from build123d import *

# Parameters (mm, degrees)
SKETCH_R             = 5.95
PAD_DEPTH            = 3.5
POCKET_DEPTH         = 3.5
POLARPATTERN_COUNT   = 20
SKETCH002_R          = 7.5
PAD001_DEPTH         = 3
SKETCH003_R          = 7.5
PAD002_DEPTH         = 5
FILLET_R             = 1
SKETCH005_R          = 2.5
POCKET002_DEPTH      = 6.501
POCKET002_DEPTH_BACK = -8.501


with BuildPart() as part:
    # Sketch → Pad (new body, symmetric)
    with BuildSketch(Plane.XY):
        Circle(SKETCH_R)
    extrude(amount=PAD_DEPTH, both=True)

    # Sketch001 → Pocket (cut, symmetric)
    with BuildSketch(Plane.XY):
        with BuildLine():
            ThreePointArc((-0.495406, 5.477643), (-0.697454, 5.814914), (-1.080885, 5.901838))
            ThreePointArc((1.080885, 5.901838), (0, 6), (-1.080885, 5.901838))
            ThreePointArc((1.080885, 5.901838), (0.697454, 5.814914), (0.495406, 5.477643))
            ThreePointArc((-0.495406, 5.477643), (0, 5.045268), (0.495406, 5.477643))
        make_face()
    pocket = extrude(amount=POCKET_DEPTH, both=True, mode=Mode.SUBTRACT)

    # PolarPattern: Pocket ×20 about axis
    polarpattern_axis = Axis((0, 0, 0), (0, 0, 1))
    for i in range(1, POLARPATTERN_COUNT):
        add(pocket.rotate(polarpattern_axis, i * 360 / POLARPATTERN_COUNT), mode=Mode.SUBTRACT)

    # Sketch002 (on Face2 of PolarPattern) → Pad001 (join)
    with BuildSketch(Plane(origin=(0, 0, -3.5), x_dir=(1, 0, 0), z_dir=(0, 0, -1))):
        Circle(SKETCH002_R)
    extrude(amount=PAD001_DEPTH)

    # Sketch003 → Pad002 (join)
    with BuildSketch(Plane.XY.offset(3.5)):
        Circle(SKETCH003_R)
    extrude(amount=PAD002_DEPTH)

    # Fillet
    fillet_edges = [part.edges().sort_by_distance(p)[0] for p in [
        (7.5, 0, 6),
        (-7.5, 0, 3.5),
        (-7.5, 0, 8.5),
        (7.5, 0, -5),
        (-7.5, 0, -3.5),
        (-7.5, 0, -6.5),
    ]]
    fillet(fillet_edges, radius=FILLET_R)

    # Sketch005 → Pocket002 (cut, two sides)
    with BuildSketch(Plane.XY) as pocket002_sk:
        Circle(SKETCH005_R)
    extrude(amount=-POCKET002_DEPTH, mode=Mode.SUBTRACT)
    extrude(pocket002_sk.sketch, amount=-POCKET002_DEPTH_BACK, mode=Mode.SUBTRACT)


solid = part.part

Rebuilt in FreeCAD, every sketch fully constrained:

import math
import FreeCAD as App
import Part
import Sketcher

V = App.Vector
Q = App.Units.Quantity


def edges_at(feature, points):
    """Names of the edges that pass closest to the given points."""
    edges = feature.Shape.Edges
    near = lambda p: min(range(len(edges)), key=lambda i: edges[i].distToShape(Part.Vertex(*p))[0])
    return sorted({f"Edge{near(p) + 1}" for p in points})

doc = App.newDocument("Part")
body = doc.addObject("PartDesign::Body", "Body")

# Sketch on XY plane
sketch1 = body.newObject("Sketcher::SketchObject", "Sketch")
sketch1.AttachmentSupport = (doc.getObject("XY_Plane"), [""])
sketch1.MapMode = "FlatFace"
sketch1.addGeometry(Part.Circle(V(0, 0, 0), V(0, 0, 1), 6), False)
sketch1.addConstraint(Sketcher.Constraint("Coincident", 0, 3, -1, 1))
sketch1.addConstraint(Sketcher.Constraint("Diameter", 0, Q("11.9 mm")))
pad1 = body.newObject("PartDesign::Pad", "Pad")
pad1.Profile = sketch1
pad1.Length = 7
pad1.Midplane = True

# Sketch on XY plane
sketch2 = body.newObject("Sketcher::SketchObject", "Sketch001")
sketch2.AttachmentSupport = (doc.getObject("XY_Plane"), [""])
sketch2.MapMode = "FlatFace"
sketch2.addGeometry(Part.ArcOfCircle(Part.Circle(V(-1, 5.4, 0), V(0, 0, 1), 0.5), math.radians(8), math.radians(100)), False)
sketch2.addGeometry(Part.ArcOfCircle(Part.Circle(V(0, 5.5, 0), V(0, 0, 1), 0.5), math.radians(-172), math.radians(-8)), False)
sketch2.addGeometry(Part.ArcOfCircle(Part.Circle(V(1, 5.4, 0), V(0, 0, 1), 0.5), math.radians(80), math.radians(172)), False)
sketch2.addGeometry(Part.ArcOfCircle(Part.Circle(V(0, 0, 0), V(0, 0, 1), 6), math.radians(80), math.radians(100)), False)
sketch2.addConstraint(Sketcher.Constraint("Tangent", 0, 1, 1, 1))
sketch2.addConstraint(Sketcher.Constraint("Tangent", 1, 2, 2, 2))
sketch2.addConstraint(Sketcher.Constraint("Coincident", 2, 1, 3, 1))
sketch2.addConstraint(Sketcher.Constraint("Coincident", 3, 2, 0, 2))
sketch2.addConstraint(Sketcher.Constraint("Equal", 0, 1))
sketch2.addConstraint(Sketcher.Constraint("Equal", 1, 2))
sketch2.addConstraint(Sketcher.Constraint("Symmetric", 0, 3, 2, 3, -2))
sketch2.addConstraint(Sketcher.Constraint("Horizontal", 2, 1, 3, 2))
sketch2.addConstraint(Sketcher.Constraint("Radius", 0, Q("0.500001 mm")))
sketch2.addConstraint(Sketcher.Constraint("Radius", 3, Q("6.000021 mm")))
sketch2.addConstraint(Sketcher.Constraint("DistanceY", -1, 1, 1, 3, Q("5.545268 mm")))
sketch2.addConstraint(Sketcher.Constraint("DistanceY", -1, 1, 2, 1, Q("5.901838 mm")))
sketch2.addConstraint(Sketcher.Constraint("DistanceY", 0, 3, 1, 3, Q("0.135252 mm")))
pocket1 = body.newObject("PartDesign::Pocket", "Pocket")
pocket1.Profile = sketch2
pocket1.Length = 7
pocket1.Midplane = True
doc.recompute()

polarpattern = body.newObject("PartDesign::PolarPattern", "PolarPattern")
polarpattern.Originals = [pocket1]
polarpattern.Axis = (doc.getObject("Z_Axis"), [""])
polarpattern.Angle = 360
polarpattern.Occurrences = 20
body.Tip = polarpattern

# Sketch on XY plane
sketch3 = body.newObject("Sketcher::SketchObject", "Sketch002")
sketch3.AttachmentSupport = (doc.getObject("XY_Plane"), [""])
sketch3.MapMode = "FlatFace"
sketch3.AttachmentOffset = App.Placement(V(0, 0, -3.5), App.Rotation())
sketch3.addGeometry(Part.Circle(V(0, 0, 0), V(0, 0, 1), 8), False)
sketch3.addConstraint(Sketcher.Constraint("Coincident", 0, 3, -1, 1))
sketch3.addConstraint(Sketcher.Constraint("Diameter", 0, Q("15 mm")))
pad2 = body.newObject("PartDesign::Pad", "Pad001")
pad2.Profile = sketch3
pad2.Length = 3
pad2.Reversed = True

# Sketch on XY plane
sketch4 = body.newObject("Sketcher::SketchObject", "Sketch003")
sketch4.AttachmentSupport = (doc.getObject("XY_Plane"), [""])
sketch4.MapMode = "FlatFace"
sketch4.AttachmentOffset = App.Placement(V(0, 0, 3.5), App.Rotation())
sketch4.addGeometry(Part.Circle(V(0, 0, 0), V(0, 0, 1), 8), False)
sketch4.addConstraint(Sketcher.Constraint("Coincident", 0, 3, -1, 1))
sketch4.addConstraint(Sketcher.Constraint("Diameter", 0, Q("15 mm")))
pad3 = body.newObject("PartDesign::Pad", "Pad002")
pad3.Profile = sketch4
pad3.Length = 5
doc.recompute()

fillet = body.newObject("PartDesign::Fillet", "Fillet")
fillet.Base = (pad3, edges_at(pad3, [
    (7.5, 0, 6),
    (-7.5, 0, 3.5),
    (-7.5, 0, 8.5),
    (7.5, 0, -5),
    (-7.5, 0, -3.5),
    (-7.5, 0, -6.5),
]))
fillet.Radius = 1

# Sketch on XY plane
sketch5 = body.newObject("Sketcher::SketchObject", "Sketch004")
sketch5.AttachmentSupport = (doc.getObject("XY_Plane"), [""])
sketch5.MapMode = "FlatFace"
sketch5.addGeometry(Part.Circle(V(0, 0, 0), V(0, 0, 1), 2.5), False)
sketch5.addConstraint(Sketcher.Constraint("Coincident", 0, 3, -1, 1))
sketch5.addConstraint(Sketcher.Constraint("Diameter", 0, Q("5 mm")))
pocket2 = body.newObject("PartDesign::Pocket", "Pocket001")
pocket2.Profile = sketch5
pocket2.Type = "ThroughAll"
pocket2.Midplane = True

doc.recompute()
